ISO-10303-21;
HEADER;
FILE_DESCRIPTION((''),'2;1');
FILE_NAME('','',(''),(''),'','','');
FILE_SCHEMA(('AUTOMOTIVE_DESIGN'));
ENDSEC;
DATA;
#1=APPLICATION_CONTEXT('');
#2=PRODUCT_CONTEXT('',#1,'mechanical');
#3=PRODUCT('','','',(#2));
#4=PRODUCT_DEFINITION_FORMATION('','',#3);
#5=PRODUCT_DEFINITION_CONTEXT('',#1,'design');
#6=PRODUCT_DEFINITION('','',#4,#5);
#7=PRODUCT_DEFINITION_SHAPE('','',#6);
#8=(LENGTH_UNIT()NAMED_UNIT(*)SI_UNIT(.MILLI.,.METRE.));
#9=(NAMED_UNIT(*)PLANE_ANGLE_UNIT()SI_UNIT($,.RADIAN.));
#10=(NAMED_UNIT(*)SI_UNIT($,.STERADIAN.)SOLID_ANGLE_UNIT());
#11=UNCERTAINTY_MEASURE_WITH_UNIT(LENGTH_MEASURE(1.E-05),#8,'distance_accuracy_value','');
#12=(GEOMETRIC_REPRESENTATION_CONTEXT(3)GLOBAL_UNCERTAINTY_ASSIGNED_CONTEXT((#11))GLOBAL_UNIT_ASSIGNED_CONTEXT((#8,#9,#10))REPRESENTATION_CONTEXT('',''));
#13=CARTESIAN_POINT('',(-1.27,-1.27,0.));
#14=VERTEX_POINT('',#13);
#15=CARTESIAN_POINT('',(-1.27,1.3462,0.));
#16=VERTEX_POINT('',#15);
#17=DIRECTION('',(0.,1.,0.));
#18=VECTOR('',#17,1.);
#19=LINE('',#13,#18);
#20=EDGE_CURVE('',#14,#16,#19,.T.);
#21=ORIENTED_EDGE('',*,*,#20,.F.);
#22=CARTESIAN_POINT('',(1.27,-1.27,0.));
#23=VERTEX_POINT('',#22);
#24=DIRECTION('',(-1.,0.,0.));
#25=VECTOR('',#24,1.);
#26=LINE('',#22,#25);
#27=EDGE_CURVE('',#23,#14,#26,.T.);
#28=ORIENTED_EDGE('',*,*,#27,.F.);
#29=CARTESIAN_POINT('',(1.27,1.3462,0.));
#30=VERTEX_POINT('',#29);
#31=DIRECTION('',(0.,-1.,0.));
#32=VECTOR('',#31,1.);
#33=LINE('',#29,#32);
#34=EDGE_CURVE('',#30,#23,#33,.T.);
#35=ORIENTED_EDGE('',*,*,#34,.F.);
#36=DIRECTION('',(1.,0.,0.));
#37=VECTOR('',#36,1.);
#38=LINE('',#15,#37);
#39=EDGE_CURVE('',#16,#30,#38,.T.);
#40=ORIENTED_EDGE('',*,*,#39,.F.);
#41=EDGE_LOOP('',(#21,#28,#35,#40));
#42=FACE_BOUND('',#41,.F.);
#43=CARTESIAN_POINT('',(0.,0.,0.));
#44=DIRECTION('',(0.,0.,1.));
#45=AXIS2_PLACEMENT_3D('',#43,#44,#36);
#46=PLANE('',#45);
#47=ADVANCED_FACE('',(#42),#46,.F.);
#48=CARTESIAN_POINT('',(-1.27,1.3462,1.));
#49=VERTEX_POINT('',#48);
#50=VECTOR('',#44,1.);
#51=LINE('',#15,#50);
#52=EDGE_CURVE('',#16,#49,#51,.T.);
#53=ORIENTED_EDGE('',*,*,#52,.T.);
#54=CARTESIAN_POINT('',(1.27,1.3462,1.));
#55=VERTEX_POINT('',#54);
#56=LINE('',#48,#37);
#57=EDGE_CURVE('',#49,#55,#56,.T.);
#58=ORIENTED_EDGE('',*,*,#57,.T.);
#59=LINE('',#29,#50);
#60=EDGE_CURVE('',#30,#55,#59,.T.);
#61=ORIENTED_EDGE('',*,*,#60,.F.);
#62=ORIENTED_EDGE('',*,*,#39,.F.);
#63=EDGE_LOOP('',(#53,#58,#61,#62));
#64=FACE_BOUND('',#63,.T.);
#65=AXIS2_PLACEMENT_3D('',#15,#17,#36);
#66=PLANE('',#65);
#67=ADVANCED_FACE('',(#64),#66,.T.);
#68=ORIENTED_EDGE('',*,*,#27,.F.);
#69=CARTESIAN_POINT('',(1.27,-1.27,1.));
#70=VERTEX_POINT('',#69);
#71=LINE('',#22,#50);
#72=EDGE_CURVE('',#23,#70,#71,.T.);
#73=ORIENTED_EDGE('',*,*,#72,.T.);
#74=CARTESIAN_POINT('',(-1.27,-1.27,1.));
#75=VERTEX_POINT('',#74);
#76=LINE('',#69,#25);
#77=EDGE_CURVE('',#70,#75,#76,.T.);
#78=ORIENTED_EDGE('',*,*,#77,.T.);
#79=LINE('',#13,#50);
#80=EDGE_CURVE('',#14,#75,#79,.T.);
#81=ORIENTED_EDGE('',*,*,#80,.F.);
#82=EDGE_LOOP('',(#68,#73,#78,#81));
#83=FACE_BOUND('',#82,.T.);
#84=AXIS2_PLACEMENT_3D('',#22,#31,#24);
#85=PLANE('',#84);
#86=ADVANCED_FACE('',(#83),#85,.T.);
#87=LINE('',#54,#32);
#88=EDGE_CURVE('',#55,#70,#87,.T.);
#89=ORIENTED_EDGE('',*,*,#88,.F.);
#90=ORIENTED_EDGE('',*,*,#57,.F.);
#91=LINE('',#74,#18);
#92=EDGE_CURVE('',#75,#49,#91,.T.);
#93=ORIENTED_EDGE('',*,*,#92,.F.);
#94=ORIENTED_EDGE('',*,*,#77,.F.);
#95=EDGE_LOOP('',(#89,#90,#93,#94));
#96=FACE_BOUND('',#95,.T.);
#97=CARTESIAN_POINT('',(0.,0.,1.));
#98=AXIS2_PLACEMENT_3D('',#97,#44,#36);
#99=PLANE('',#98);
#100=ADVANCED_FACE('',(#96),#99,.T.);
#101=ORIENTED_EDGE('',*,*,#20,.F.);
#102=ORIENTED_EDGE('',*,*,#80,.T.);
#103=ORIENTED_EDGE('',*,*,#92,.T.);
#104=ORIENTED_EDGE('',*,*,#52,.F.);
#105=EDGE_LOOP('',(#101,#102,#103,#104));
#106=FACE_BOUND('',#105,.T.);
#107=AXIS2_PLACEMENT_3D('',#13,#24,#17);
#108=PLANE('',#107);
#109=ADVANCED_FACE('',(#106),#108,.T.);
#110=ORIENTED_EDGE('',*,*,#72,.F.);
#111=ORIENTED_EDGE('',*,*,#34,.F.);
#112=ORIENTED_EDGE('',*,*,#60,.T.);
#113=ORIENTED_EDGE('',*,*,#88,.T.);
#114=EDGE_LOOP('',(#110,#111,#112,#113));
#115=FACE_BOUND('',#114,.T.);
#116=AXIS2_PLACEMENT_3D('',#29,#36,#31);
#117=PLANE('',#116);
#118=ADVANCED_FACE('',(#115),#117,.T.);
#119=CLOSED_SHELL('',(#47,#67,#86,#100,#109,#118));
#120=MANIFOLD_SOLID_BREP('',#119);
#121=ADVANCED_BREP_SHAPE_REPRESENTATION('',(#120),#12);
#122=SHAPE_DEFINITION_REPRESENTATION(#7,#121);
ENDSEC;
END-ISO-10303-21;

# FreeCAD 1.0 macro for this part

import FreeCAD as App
import Part
import Sketcher
Q = App.Units.Quantity


def add_polygon(sketch, points):
    """Adds a closed chain of lines whose ends are joined by coincident constraints."""
    first, n = sketch.GeometryCount, len(points)
    for a, b in zip(points, points[1:] + points[:1]):
        sketch.addGeometry(Part.LineSegment(App.Vector(*a, 0), App.Vector(*b, 0)), False)
    for i in range(n):
        sketch.addConstraint(Sketcher.Constraint("Coincident", first + i, 2, first + (i + 1) % n, 1))

doc = App.newDocument("Part")
body = doc.addObject("PartDesign::Body", "Body")

sketch1 = body.newObject("Sketcher::SketchObject", "Sketch")
sketch1.AttachmentSupport = (doc.getObject("XY_Plane"), [""])
sketch1.MapMode = "FlatFace"
add_polygon(sketch1, [(1.3, 1.3), (-1.3, 1.3), (-1.3, -1.3), (1.3, -1.3)])
sketch1.addConstraint(Sketcher.Constraint("Horizontal", 0))
sketch1.addConstraint(Sketcher.Constraint("Vertical", 1))
sketch1.addConstraint(Sketcher.Constraint("Horizontal", 2))
sketch1.addConstraint(Sketcher.Constraint("Vertical", 3))
sketch1.addConstraint(Sketcher.Constraint("DistanceX", 0, 2, 0, 1, Q("0.1 in")))
sketch1.addConstraint(Sketcher.Constraint("DistanceY", 1, 2, 1, 1, Q("0.103 in")))
sketch1.addConstraint(Sketcher.Constraint("DistanceX", 0, 2, -1, 1, Q("0.05 in")))
sketch1.addConstraint(Sketcher.Constraint("DistanceY", 1, 2, -1, 1, Q("0.05 in")))
pad1 = body.newObject("PartDesign::Pad", "Pad")
pad1.Profile = sketch1
pad1.Length = 1

doc.recompute()
